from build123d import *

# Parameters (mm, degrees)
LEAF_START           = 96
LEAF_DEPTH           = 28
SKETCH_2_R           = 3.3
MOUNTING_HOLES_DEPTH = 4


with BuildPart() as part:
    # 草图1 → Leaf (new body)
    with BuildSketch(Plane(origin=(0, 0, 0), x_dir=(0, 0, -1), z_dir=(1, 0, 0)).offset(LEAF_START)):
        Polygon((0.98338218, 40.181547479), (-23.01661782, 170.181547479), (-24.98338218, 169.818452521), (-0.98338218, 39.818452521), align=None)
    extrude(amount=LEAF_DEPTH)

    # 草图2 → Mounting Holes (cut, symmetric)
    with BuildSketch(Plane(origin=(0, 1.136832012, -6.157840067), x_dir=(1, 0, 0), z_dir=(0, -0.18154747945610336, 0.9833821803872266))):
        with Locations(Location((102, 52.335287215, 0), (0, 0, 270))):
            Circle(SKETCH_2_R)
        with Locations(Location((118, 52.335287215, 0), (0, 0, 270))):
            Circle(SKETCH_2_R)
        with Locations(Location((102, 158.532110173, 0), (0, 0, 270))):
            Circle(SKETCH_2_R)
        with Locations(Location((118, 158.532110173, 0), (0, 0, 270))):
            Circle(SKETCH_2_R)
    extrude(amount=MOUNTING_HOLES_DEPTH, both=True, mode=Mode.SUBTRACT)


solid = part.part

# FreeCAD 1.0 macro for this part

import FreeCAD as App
import Part
import Sketcher
Q = App.Units.Quantity

doc = App.newDocument("Part")
body = doc.addObject("PartDesign::Body", "Body")

sketch1 = body.newObject("Sketcher::SketchObject", "Sketch")
sketch1.AttachmentSupport = (doc.getObject("YZ_Plane"), [""])
sketch1.MapMode = "FlatFace"
sketch1.AttachmentOffset = App.Placement(App.Vector(0, 0, 96), App.Rotation())
sketch1.addGeometry(Part.LineSegment(App.Vector(40.2, -1, 0), App.Vector(170.2, 23, 0)), False)
sketch1.addGeometry(Part.LineSegment(App.Vector(170.2, 23, 0), App.Vector(169.8, 25, 0)), False)
sketch1.addGeometry(Part.LineSegment(App.Vector(169.8, 25, 0), App.Vector(39.8, 1, 0)), False)
sketch1.addGeometry(Part.LineSegment(App.Vector(39.8, 1, 0), App.Vector(40.2, -1, 0)), False)
sketch1.addConstraint(Sketcher.Constraint("Coincident", 0, 2, 1, 1))
sketch1.addConstraint(Sketcher.Constraint("Coincident", 1, 2, 2, 1))
sketch1.addConstraint(Sketcher.Constraint("Coincident", 2, 2, 3, 1))
sketch1.addConstraint(Sketcher.Constraint("Coincident", 3, 2, 0, 1))
sketch1.addConstraint(Sketcher.Constraint("Perpendicular", 0, 1))
sketch1.addConstraint(Sketcher.Constraint("Perpendicular", 1, 2))
sketch1.addConstraint(Sketcher.Constraint("Perpendicular", 2, 3))
sketch1.addConstraint(Sketcher.Constraint("Distance", 1, Q("2 mm")))
sketch1.addConstraint(Sketcher.Constraint("DistanceX", 2, 2, 1, 2, Q("130 mm")))
sketch1.addConstraint(Sketcher.Constraint("DistanceY", 2, 2, 1, 2, Q("24 mm")))
sketch1.addConstraint(Sketcher.Constraint("DistanceX", -1, 1, 0, 2, Q("170.181547 mm")))
sketch1.addConstraint(Sketcher.Constraint("DistanceY", -1, 1, 0, 2, Q("23.016618 mm")))
pad1 = body.newObject("PartDesign::Pad", "Pad")
pad1.Profile = sketch1
pad1.Length = 28

sketch2 = body.newObject("Sketcher::SketchObject", "Sketch001")
sketch2.Placement = App.Placement(App.Vector(0, 1.136832, -6.15784), App.Rotation(App.Vector(1, 0, 0), App.Vector(0, 0.98338218, 0.181547479), App.Vector(0, -0.181547479, 0.98338218), "ZXY"))
sketch2.addGeometry(Part.Circle(App.Vector(102, 52.3, 0), App.Vector(0, 0, 1), 3.3), False)
sketch2.addGeometry(Part.Circle(App.Vector(118, 52.3, 0), App.Vector(0, 0, 1), 3.3), False)
sketch2.addGeometry(Part.Circle(App.Vector(102, 158.5, 0), App.Vector(0, 0, 1), 3.3), False)
sketch2.addGeometry(Part.Circle(App.Vector(118, 158.5, 0), App.Vector(0, 0, 1), 3.3), False)
sketch2.addConstraint(Sketcher.Constraint("Equal", 0, 1))
sketch2.addConstraint(Sketcher.Constraint("Equal", 1, 2))
sketch2.addConstraint(Sketcher.Constraint("Equal", 2, 3))
sketch2.addConstraint(Sketcher.Constraint("Horizontal", 0, 3, 1, 3))
sketch2.addConstraint(Sketcher.Constraint("Horizontal", 2, 3, 3, 3))
sketch2.addConstraint(Sketcher.Constraint("Vertical", 0, 3, 2, 3))
sketch2.addConstraint(Sketcher.Constraint("Vertical", 1, 3, 3, 3))
sketch2.addConstraint(Sketcher.Constraint("Diameter", 0, Q("6.6 mm")))
sketch2.addConstraint(Sketcher.Constraint("DistanceX", -1, 1, 0, 3, Q("102 mm")))
sketch2.addConstraint(Sketcher.Constraint("DistanceX", -1, 1, 1, 3, Q("118 mm")))
sketch2.addConstraint(Sketcher.Constraint("DistanceY", -1, 1, 2, 3, Q("158.53211 mm")))
sketch2.addConstraint(Sketcher.Constraint("DistanceY", -1, 1, 0, 3, Q("52.335287 mm")))
pocket1 = body.newObject("PartDesign::Pocket", "Pocket")
pocket1.Profile = sketch2
pocket1.Length = 8
pocket1.Midplane = True

doc.recompute()
